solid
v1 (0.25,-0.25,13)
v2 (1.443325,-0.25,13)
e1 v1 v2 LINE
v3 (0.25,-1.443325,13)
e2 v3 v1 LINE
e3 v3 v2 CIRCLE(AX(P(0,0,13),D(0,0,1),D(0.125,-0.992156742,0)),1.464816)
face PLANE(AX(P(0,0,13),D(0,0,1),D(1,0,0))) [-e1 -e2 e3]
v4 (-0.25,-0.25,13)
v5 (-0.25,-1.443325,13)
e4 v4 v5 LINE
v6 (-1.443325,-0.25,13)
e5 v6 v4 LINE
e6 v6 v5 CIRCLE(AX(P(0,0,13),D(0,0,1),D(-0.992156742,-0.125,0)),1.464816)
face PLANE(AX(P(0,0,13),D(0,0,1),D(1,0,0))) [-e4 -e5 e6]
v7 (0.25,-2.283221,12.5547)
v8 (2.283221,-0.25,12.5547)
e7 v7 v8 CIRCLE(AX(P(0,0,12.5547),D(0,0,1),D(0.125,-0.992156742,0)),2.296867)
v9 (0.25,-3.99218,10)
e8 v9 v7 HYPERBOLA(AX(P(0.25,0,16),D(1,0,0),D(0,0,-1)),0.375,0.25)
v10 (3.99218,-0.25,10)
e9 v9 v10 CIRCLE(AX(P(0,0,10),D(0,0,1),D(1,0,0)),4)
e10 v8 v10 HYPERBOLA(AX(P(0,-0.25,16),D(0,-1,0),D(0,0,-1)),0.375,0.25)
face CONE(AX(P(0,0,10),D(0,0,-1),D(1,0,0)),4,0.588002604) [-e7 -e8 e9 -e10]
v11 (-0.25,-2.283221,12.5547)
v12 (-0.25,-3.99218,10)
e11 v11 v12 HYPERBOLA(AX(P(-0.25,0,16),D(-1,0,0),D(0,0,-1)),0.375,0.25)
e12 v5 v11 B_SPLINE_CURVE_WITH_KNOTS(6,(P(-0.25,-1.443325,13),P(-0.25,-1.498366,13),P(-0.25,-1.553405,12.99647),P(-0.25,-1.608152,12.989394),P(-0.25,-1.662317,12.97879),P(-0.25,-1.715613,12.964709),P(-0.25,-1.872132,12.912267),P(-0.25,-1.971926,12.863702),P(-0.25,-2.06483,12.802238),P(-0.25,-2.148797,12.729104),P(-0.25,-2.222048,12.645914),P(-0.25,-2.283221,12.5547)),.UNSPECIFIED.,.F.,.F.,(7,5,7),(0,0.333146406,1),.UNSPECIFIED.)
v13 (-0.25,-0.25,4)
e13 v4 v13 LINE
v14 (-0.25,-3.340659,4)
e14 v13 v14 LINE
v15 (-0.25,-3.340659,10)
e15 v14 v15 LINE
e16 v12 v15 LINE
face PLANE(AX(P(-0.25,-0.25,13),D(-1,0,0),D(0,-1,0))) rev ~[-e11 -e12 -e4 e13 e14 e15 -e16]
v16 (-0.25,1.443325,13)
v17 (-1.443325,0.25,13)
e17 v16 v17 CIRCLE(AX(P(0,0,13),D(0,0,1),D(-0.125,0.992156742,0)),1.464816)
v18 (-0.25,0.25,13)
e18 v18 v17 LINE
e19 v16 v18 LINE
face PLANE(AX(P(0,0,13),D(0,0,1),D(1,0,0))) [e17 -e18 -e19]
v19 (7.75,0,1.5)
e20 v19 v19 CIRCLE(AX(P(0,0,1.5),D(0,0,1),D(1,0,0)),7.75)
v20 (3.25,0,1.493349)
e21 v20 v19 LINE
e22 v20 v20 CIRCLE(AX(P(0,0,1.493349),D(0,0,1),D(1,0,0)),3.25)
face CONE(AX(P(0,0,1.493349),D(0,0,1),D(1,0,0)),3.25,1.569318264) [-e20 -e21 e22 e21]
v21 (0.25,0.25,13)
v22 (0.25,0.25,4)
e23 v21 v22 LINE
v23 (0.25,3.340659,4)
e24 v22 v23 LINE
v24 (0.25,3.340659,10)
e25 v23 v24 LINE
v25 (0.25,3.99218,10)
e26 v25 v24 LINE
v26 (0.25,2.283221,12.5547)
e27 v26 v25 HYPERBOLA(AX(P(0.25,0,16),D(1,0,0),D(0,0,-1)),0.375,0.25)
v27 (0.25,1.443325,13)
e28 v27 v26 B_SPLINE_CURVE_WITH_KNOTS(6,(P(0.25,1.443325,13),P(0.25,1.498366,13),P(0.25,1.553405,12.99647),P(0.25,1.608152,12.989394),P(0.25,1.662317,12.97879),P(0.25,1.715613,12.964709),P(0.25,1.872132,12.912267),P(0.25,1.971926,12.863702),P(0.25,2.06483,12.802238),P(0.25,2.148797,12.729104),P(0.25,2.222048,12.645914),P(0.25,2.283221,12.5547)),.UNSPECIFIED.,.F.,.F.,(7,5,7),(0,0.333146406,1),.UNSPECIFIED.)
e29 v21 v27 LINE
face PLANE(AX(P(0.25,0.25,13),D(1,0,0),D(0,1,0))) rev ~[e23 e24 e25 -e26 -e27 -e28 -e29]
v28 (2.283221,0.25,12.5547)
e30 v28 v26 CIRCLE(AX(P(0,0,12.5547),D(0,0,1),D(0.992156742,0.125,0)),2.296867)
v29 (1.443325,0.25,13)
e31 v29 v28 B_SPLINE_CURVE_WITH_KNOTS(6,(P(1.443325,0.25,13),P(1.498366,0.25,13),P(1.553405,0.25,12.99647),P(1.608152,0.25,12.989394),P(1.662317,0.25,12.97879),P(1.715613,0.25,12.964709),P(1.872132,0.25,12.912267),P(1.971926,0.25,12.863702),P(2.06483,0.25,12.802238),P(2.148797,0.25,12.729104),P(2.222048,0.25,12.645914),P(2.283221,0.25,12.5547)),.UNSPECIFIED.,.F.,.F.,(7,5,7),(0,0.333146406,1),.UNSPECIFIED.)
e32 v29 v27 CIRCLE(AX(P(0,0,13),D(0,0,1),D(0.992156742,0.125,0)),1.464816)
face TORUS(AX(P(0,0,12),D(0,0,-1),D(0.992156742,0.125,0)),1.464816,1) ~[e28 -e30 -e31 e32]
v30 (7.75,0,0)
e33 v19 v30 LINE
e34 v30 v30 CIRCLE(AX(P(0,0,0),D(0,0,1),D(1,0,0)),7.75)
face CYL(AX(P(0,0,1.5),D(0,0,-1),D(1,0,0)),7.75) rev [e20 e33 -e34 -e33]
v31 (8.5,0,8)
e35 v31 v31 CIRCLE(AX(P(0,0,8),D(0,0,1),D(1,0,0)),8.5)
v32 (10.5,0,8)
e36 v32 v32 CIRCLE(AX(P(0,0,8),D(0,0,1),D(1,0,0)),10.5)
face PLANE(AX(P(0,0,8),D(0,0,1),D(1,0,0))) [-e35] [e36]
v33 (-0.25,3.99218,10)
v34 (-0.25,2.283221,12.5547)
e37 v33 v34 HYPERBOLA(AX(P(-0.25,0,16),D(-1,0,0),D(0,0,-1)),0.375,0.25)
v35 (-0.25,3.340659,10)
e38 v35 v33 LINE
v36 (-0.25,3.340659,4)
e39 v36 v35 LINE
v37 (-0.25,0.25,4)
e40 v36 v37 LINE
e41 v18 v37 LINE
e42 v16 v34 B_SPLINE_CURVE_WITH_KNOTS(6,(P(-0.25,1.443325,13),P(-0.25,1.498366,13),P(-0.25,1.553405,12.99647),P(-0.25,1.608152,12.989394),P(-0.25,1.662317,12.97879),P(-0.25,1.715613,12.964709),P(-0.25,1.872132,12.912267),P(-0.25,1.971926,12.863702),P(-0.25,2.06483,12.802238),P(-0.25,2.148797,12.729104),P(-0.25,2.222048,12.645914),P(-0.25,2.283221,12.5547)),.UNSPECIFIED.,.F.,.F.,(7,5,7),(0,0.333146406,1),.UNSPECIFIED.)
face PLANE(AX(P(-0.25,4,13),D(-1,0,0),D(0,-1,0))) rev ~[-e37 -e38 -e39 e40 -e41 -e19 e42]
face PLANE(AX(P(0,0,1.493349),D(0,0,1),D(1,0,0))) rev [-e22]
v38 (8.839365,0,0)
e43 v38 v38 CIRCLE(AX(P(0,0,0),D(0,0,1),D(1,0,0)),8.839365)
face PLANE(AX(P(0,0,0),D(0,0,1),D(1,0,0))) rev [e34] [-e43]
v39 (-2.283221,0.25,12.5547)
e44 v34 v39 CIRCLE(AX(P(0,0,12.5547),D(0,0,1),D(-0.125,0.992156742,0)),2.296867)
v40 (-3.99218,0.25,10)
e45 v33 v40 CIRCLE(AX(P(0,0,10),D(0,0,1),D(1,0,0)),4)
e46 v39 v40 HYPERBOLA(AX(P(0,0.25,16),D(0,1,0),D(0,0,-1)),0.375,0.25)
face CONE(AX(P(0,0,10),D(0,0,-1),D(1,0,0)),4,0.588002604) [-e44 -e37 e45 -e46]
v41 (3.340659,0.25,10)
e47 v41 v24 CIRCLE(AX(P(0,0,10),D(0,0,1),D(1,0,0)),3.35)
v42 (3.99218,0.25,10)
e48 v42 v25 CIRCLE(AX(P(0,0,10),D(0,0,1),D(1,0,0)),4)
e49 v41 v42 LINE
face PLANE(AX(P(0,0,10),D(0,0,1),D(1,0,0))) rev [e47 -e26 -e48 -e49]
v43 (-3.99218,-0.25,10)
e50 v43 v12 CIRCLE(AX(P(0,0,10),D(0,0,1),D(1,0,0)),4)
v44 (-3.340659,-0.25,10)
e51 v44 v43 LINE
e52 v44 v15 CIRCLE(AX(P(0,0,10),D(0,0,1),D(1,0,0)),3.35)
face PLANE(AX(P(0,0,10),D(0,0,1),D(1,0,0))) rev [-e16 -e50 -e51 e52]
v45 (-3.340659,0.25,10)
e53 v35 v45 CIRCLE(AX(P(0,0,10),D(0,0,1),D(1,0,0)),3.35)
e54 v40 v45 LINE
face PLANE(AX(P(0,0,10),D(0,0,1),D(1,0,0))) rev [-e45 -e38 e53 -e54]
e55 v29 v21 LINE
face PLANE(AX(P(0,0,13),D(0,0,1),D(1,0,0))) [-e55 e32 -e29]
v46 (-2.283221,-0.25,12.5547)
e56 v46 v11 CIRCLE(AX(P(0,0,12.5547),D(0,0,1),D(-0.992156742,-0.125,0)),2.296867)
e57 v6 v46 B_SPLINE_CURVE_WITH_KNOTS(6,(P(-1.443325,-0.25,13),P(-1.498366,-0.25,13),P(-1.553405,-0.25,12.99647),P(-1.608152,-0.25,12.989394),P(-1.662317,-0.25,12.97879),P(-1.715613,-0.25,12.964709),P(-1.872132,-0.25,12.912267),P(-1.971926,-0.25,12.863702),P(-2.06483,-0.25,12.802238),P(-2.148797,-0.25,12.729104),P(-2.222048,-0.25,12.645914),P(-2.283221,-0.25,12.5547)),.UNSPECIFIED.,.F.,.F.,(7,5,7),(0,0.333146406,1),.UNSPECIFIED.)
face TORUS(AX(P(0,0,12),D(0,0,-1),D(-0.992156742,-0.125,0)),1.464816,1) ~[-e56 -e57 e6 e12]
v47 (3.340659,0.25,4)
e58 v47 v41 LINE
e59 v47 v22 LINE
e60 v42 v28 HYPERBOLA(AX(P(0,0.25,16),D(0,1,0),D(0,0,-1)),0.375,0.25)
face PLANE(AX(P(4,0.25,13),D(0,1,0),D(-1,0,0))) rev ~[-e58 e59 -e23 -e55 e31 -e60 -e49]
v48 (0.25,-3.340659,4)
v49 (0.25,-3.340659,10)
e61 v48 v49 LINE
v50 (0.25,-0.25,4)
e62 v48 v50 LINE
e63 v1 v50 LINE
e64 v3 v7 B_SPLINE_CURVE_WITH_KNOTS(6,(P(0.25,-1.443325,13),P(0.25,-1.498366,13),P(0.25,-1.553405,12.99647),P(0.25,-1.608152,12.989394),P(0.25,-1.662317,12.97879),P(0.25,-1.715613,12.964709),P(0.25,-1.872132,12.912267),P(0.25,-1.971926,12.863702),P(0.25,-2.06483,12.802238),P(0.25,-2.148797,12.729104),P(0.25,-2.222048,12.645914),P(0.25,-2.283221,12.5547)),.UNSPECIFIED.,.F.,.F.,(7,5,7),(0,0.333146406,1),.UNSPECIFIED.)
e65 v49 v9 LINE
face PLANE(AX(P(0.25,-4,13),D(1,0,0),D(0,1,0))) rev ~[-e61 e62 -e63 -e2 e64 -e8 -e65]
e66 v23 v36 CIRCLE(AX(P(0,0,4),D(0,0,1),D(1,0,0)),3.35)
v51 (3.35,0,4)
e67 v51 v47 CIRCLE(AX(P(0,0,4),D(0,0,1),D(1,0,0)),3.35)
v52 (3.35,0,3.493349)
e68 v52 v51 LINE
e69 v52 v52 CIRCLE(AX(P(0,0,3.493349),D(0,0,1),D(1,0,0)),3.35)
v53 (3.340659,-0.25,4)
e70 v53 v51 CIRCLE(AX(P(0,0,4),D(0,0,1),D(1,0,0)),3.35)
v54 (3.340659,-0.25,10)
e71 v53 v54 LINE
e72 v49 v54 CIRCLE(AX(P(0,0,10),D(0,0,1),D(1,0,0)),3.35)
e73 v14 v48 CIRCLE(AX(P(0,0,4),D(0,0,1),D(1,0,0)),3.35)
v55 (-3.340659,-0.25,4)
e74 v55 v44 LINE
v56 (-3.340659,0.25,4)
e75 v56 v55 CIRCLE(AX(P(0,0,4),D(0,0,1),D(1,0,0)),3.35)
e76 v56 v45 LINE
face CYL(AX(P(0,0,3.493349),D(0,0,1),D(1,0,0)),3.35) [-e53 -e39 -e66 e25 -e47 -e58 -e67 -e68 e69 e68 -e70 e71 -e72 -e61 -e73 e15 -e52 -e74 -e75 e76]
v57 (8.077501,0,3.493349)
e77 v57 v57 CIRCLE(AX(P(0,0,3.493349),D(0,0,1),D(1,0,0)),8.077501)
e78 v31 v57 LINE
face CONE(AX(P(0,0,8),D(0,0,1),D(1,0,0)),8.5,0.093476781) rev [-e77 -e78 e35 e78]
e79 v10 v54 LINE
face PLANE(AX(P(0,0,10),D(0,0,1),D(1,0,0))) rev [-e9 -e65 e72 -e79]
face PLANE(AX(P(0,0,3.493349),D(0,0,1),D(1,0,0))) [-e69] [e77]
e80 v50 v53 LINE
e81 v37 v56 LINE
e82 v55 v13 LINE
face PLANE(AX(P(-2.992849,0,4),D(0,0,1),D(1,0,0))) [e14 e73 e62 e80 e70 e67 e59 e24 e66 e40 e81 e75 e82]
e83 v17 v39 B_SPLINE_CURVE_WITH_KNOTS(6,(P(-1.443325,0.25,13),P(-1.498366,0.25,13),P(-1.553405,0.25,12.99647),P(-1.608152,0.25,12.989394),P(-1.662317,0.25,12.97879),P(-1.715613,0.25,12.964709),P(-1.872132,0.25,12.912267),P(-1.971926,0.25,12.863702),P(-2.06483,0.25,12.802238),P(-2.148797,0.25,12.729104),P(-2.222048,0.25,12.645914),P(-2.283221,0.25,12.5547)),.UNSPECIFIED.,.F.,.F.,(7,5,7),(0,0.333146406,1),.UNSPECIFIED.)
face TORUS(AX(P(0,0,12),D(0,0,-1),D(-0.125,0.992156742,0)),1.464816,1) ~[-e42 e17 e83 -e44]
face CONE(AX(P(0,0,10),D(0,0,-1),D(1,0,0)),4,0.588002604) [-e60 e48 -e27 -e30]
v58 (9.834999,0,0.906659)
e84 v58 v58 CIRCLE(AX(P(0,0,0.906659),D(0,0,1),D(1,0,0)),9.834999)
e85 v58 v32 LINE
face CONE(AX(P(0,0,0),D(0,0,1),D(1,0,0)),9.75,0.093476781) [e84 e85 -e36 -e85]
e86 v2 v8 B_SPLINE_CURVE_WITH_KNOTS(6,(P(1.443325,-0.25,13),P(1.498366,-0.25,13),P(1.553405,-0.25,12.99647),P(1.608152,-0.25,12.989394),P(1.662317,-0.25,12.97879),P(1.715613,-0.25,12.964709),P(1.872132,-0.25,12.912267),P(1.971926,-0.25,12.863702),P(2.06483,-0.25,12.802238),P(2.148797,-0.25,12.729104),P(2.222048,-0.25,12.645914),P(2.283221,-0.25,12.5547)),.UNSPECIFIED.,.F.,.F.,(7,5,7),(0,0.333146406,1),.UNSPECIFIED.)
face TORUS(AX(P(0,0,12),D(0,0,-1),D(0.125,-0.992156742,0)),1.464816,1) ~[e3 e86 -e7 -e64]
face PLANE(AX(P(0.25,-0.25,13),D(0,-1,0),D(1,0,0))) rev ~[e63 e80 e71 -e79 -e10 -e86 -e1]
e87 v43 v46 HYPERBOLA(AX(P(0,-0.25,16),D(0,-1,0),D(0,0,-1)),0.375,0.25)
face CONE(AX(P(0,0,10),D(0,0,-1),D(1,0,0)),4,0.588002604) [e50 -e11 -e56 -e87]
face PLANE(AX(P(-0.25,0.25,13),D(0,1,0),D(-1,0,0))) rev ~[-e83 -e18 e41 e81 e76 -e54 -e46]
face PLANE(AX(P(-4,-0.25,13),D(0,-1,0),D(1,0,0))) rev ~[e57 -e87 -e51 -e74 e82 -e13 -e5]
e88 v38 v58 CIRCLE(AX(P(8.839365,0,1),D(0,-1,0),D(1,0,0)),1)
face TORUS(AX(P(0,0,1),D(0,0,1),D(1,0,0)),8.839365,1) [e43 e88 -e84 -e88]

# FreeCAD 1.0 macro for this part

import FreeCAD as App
import Part
import Sketcher

V = App.Vector
Q = App.Units.Quantity


def edges_at(feature, points):
    """Names of the edges that pass closest to the given points."""
    edges = feature.Shape.Edges
    near = lambda p: min(range(len(edges)), key=lambda i: edges[i].distToShape(Part.Vertex(*p))[0])
    return sorted({f"Edge{near(p) + 1}" for p in points})


def add_polygon(sketch, points):
    """Adds a closed chain of lines whose ends are joined by coincident constraints."""
    first, n = sketch.GeometryCount, len(points)
    for a, b in zip(points, points[1:] + points[:1]):
        sketch.addGeometry(Part.LineSegment(App.Vector(*a, 0), App.Vector(*b, 0)), False)
    for i in range(n):
        sketch.addConstraint(Sketcher.Constraint("Coincident", first + i, 2, first + (i + 1) % n, 1))

doc = App.newDocument("Part")
body = doc.addObject("PartDesign::Body", "Body")

sketch1 = doc.addObject("Sketcher::SketchObject", "Sketch")
body.addObject(sketch1)
sketch1.AttachmentSupport = (doc.XZ_Plane, [""])
sketch1.MapMode = "FlatFace"
add_polygon(sketch1, [(7.8, 0), (9.8, 0), (10.5, 8), (8.5, 8), (8.1, 3.5), (3.4, 3.5), (3.4, 10), (4, 10), (2, 13), (0, 13), (0, 1.5), (3.2, 1.5), (7.8, 1.5)])
sketch1.addConstraint([
    Sketcher.Constraint("Horizontal", 0),
    Sketcher.Constraint("Horizontal", 2),
    Sketcher.Constraint("Horizontal", 4),
    Sketcher.Constraint("Vertical", 5),
    Sketcher.Constraint("Horizontal", 6),
    Sketcher.Constraint("Horizontal", 8),
    Sketcher.Constraint("Vertical", 9),
    Sketcher.Constraint("Horizontal", 10),
    Sketcher.Constraint("Vertical", 12),
    Sketcher.Constraint("PointOnObject", 0, 2, -1),
    Sketcher.Constraint("PointOnObject", 8, 2, -2),
    Sketcher.Constraint("Parallel", 1, 3),
    Sketcher.Constraint("Equal", 0, 2),
    Sketcher.Constraint("Equal", 2, 8),
    Sketcher.Constraint("DistanceX", 0, 1, 0, 2, Q("2 mm")),
    Sketcher.Constraint("DistanceY", 12, 2, 12, 1, Q("1.5 mm")),
    Sketcher.Constraint("DistanceY", -1, 1, 1, 2, Q("8 mm")),
    Sketcher.Constraint("DistanceY", -1, 1, 5, 2, Q("10 mm")),
    Sketcher.Constraint("DistanceX", -1, 1, 6, 2, Q("4 mm")),
    Sketcher.Constraint("DistanceY", -1, 1, 7, 2, Q("13 mm")),
    Sketcher.Constraint("DistanceY", 9, 2, 4, 2, Q("2 mm")),
    Sketcher.Constraint("DistanceX", 6, 1, 6, 2, Q("0.65 mm")),
    Sketcher.Constraint("DistanceX", 10, 1, 10, 2, Q("3.25 mm")),
    Sketcher.Constraint("DistanceX", -1, 1, 1, 2, Q("10.5 mm")),
    Sketcher.Constraint("DistanceX", 4, 2, 0, 2, Q("6.4 mm")),
    Sketcher.Constraint("DistanceX", 4, 2, 4, 1, Q("4.727501 mm")),
])
revolution = doc.addObject("PartDesign::Revolution", "Revolution")
body.addObject(revolution)
revolution.Profile = sketch1
revolution.ReferenceAxis = (sketch1, ["V_Axis"])
revolution.Angle = 360

sketch2 = doc.addObject("Sketcher::SketchObject", "Sketch001")
body.addObject(sketch2)
sketch2.AttachmentSupport = (doc.XY_Plane, [""])
sketch2.MapMode = "FlatFace"
sketch2.AttachmentOffset = App.Placement(V(0, 0, 13), App.Rotation())
add_polygon(sketch2, [(-4, 0.2), (-4, -0.2), (-0.2, -0.2), (-0.2, -4), (0.2, -4), (0.2, -0.2), (4, -0.2), (4, 0.2), (0.2, 0.2), (0.2, 4), (-0.2, 4), (-0.2, 0.2)])
sketch2.addConstraint([
    Sketcher.Constraint("Vertical", 0),
    Sketcher.Constraint("Horizontal", 1),
    Sketcher.Constraint("Vertical", 2),
    Sketcher.Constraint("Horizontal", 3),
    Sketcher.Constraint("Vertical", 4),
    Sketcher.Constraint("Horizontal", 5),
    Sketcher.Constraint("Vertical", 6),
    Sketcher.Constraint("Horizontal", 7),
    Sketcher.Constraint("Vertical", 8),
    Sketcher.Constraint("Horizontal", 9),
    Sketcher.Constraint("Vertical", 10),
    Sketcher.Constraint("Horizontal", 11),
    Sketcher.Constraint("Symmetric", 0, 2, 6, 2, -1, 1),
    Sketcher.Constraint("Symmetric", 2, 2, 8, 2, -1, 1),
    Sketcher.Constraint("Symmetric", 4, 2, 10, 2, -1, 1),
    Sketcher.Constraint("Symmetric", 1, 2, 4, 2, -2),
    Sketcher.Constraint("Equal", 9, 0),
    Sketcher.Constraint("Equal", 11, 2),
    Sketcher.Constraint("DistanceX", 3, 1, 3, 2, Q("0.5 mm")),
    Sketcher.Constraint("DistanceX", 0, 2, -1, 1, Q("4 mm")),
])
pocket1 = doc.addObject("PartDesign::Pocket", "Pocket")
body.addObject(pocket1)
pocket1.Profile = sketch2
pocket1.Length = 9
doc.recompute()

fillet = doc.addObject("PartDesign::Fillet", "Fillet")
body.addObject(fillet)
fillet.Base = (pocket1, edges_at(pocket1, [(-9.75, 0, 0)]))
fillet.Radius = 1
doc.recompute()

fillet2 = doc.addObject("PartDesign::Fillet", "Fillet001")
body.addObject(fillet2)
fillet2.Base = (fillet, edges_at(fillet, [
    (-1.414, -1.414, 13),
    (1.414, -1.414, 13),
    (1.414, 1.414, 13),
    (-1.414, 1.414, 13),
]))
fillet2.Radius = 1

doc.recompute()
